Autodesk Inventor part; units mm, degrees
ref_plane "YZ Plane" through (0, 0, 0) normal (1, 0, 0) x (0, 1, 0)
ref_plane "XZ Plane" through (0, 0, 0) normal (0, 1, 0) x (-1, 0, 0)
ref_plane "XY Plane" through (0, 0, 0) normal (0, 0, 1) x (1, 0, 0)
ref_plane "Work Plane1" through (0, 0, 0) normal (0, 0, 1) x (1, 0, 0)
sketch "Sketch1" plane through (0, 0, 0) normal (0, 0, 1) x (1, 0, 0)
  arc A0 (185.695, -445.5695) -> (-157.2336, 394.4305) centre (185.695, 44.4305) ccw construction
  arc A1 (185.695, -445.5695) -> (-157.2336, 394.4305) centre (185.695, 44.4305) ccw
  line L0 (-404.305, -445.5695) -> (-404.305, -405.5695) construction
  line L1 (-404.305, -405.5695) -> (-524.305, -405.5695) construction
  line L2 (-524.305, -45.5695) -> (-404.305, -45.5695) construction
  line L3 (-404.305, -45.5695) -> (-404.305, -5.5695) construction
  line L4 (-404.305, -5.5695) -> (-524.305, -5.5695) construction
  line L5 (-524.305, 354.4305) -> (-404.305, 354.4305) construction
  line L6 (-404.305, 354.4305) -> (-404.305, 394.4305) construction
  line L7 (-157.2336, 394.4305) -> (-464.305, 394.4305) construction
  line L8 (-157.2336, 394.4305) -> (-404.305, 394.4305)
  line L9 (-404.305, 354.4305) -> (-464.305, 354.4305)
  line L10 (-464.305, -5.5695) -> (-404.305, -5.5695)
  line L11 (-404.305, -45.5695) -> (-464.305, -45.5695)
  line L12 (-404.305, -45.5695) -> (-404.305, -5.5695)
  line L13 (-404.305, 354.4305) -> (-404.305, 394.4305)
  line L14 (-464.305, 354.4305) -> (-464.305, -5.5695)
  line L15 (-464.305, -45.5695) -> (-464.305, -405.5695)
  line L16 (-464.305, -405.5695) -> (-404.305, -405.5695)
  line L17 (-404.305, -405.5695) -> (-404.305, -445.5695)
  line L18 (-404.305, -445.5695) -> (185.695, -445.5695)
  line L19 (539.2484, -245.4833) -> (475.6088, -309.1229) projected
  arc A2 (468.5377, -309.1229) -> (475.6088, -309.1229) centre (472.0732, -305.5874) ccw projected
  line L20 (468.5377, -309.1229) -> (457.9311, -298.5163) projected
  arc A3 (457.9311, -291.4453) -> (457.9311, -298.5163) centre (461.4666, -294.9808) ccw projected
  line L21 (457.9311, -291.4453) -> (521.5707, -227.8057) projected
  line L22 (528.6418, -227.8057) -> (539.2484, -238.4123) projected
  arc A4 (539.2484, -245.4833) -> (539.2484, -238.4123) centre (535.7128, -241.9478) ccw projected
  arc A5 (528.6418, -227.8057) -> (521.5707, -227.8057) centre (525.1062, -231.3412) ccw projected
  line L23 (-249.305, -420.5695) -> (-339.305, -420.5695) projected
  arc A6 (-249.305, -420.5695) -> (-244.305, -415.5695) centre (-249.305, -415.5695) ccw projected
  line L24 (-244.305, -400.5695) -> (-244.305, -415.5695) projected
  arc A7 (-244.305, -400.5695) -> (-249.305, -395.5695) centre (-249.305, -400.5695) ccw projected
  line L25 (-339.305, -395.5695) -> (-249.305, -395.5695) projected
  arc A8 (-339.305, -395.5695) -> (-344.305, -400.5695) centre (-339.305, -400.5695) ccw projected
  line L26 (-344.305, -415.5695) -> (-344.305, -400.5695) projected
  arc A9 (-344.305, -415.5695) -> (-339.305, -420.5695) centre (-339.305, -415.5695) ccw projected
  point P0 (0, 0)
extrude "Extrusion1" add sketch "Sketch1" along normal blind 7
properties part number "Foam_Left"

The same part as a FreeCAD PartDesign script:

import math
import FreeCAD as App
import Part
import Sketcher
from FreeCAD import Vector

doc = App.newDocument("Part")
body = doc.addObject("PartDesign::Body", "Body")

# Sketch on XY plane
sketch1 = body.newObject("Sketcher::SketchObject", "Sketch")
sketch1.AttachmentSupport = (doc.getObject("XY_Plane"), [""])
sketch1.MapMode = "FlatFace"
sketch1.addGeometry(Part.LineSegment(Vector(-404.3, -445.6, 0), Vector(185.7, -445.6, 0)), False)
sketch1.addGeometry(Part.ArcOfCircle(Part.Circle(Vector(185.7, 44.4, 0), Vector(0, 0, 1), 490), math.radians(-90), math.radians(134)), False)
sketch1.addGeometry(Part.LineSegment(Vector(-157.2, 394.4, 0), Vector(-404.3, 394.4, 0)), False)
sketch1.addGeometry(Part.LineSegment(Vector(-404.3, 394.4, 0), Vector(-404.3, 354.4, 0)), False)
sketch1.addGeometry(Part.LineSegment(Vector(-404.3, 354.4, 0), Vector(-464.3, 354.4, 0)), False)
sketch1.addGeometry(Part.LineSegment(Vector(-464.3, 354.4, 0), Vector(-464.3, -5.6, 0)), False)
sketch1.addGeometry(Part.LineSegment(Vector(-464.3, -5.6, 0), Vector(-404.3, -5.6, 0)), False)
sketch1.addGeometry(Part.LineSegment(Vector(-404.3, -5.6, 0), Vector(-404.3, -45.6, 0)), False)
sketch1.addGeometry(Part.LineSegment(Vector(-404.3, -45.6, 0), Vector(-464.3, -45.6, 0)), False)
sketch1.addGeometry(Part.LineSegment(Vector(-464.3, -45.6, 0), Vector(-464.3, -405.6, 0)), False)
sketch1.addGeometry(Part.LineSegment(Vector(-464.3, -405.6, 0), Vector(-404.3, -405.6, 0)), False)
sketch1.addGeometry(Part.LineSegment(Vector(-404.3, -405.6, 0), Vector(-404.3, -445.6, 0)), False)
sketch1.addGeometry(Part.ArcOfCircle(Part.Circle(Vector(-249.3, -415.6, 0), Vector(0, 0, 1), 5), math.radians(-90), math.radians(0)), False)
sketch1.addGeometry(Part.LineSegment(Vector(-249.3, -420.6, 0), Vector(-339.3, -420.6, 0)), False)
sketch1.addGeometry(Part.ArcOfCircle(Part.Circle(Vector(-339.3, -415.6, 0), Vector(0, 0, 1), 5), math.radians(180), math.radians(270)), False)
sketch1.addGeometry(Part.LineSegment(Vector(-344.3, -415.6, 0), Vector(-344.3, -400.6, 0)), False)
sketch1.addGeometry(Part.ArcOfCircle(Part.Circle(Vector(-339.3, -400.6, 0), Vector(0, 0, 1), 5), math.radians(90), math.radians(180)), False)
sketch1.addGeometry(Part.LineSegment(Vector(-339.3, -395.6, 0), Vector(-249.3, -395.6, 0)), False)
sketch1.addGeometry(Part.ArcOfCircle(Part.Circle(Vector(-249.3, -400.6, 0), Vector(0, 0, 1), 5), math.radians(0), math.radians(90)), False)
sketch1.addGeometry(Part.LineSegment(Vector(-244.3, -400.6, 0), Vector(-244.3, -415.6, 0)), False)
sketch1.addGeometry(Part.ArcOfCircle(Part.Circle(Vector(535.7, -241.9, 0), Vector(0, 0, 1), 5), math.radians(-45), math.radians(45)), False)
sketch1.addGeometry(Part.LineSegment(Vector(539.2, -245.5, 0), Vector(475.6, -309.1, 0)), False)
sketch1.addGeometry(Part.ArcOfCircle(Part.Circle(Vector(472.1, -305.6, 0), Vector(0, 0, 1), 5), math.radians(-135), math.radians(-45)), False)
sketch1.addGeometry(Part.LineSegment(Vector(468.5, -309.1, 0), Vector(457.9, -298.5, 0)), False)
sketch1.addGeometry(Part.ArcOfCircle(Part.Circle(Vector(461.5, -295, 0), Vector(0, 0, 1), 5), math.radians(135), math.radians(225)), False)
sketch1.addGeometry(Part.LineSegment(Vector(457.9, -291.4, 0), Vector(521.6, -227.8, 0)), False)
sketch1.addGeometry(Part.ArcOfCircle(Part.Circle(Vector(525.1, -231.3, 0), Vector(0, 0, 1), 5), math.radians(45), math.radians(135)), False)
sketch1.addGeometry(Part.LineSegment(Vector(528.6, -227.8, 0), Vector(539.2, -238.4, 0)), False)
sketch1.addConstraint(Sketcher.Constraint("Tangent", 0, 2, 1, 1))
sketch1.addConstraint(Sketcher.Constraint("Coincident", 1, 2, 2, 1))
sketch1.addConstraint(Sketcher.Constraint("Coincident", 2, 2, 3, 1))
sketch1.addConstraint(Sketcher.Constraint("Coincident", 3, 2, 4, 1))
sketch1.addConstraint(Sketcher.Constraint("Coincident", 4, 2, 5, 1))
sketch1.addConstraint(Sketcher.Constraint("Coincident", 5, 2, 6, 1))
sketch1.addConstraint(Sketcher.Constraint("Coincident", 6, 2, 7, 1))
sketch1.addConstraint(Sketcher.Constraint("Coincident", 7, 2, 8, 1))
sketch1.addConstraint(Sketcher.Constraint("Coincident", 8, 2, 9, 1))
sketch1.addConstraint(Sketcher.Constraint("Coincident", 9, 2, 10, 1))
sketch1.addConstraint(Sketcher.Constraint("Coincident", 10, 2, 11, 1))
sketch1.addConstraint(Sketcher.Constraint("Coincident", 11, 2, 0, 1))
sketch1.addConstraint(Sketcher.Constraint("Tangent", 12, 1, 13, 1))
sketch1.addConstraint(Sketcher.Constraint("Tangent", 13, 2, 14, 2))
sketch1.addConstraint(Sketcher.Constraint("Tangent", 14, 1, 15, 1))
sketch1.addConstraint(Sketcher.Constraint("Tangent", 15, 2, 16, 2))
sketch1.addConstraint(Sketcher.Constraint("Tangent", 16, 1, 17, 1))
sketch1.addConstraint(Sketcher.Constraint("Tangent", 17, 2, 18, 2))
sketch1.addConstraint(Sketcher.Constraint("Tangent", 18, 1, 19, 1))
sketch1.addConstraint(Sketcher.Constraint("Tangent", 19, 2, 12, 2))
sketch1.addConstraint(Sketcher.Constraint("Tangent", 20, 1, 21, 1))
sketch1.addConstraint(Sketcher.Constraint("Tangent", 21, 2, 22, 2))
sketch1.addConstraint(Sketcher.Constraint("Tangent", 22, 1, 23, 1))
sketch1.addConstraint(Sketcher.Constraint("Tangent", 23, 2, 24, 2))
sketch1.addConstraint(Sketcher.Constraint("Tangent", 24, 1, 25, 1))
sketch1.addConstraint(Sketcher.Constraint("Tangent", 25, 2, 26, 2))
sketch1.addConstraint(Sketcher.Constraint("Tangent", 26, 1, 27, 1))
sketch1.addConstraint(Sketcher.Constraint("Tangent", 27, 2, 20, 2))
sketch1.addConstraint(Sketcher.Constraint("Horizontal", 0))
sketch1.addConstraint(Sketcher.Constraint("Horizontal", 2))
sketch1.addConstraint(Sketcher.Constraint("Vertical", 3))
sketch1.addConstraint(Sketcher.Constraint("Horizontal", 4))
sketch1.addConstraint(Sketcher.Constraint("Vertical", 5))
sketch1.addConstraint(Sketcher.Constraint("Horizontal", 6))
sketch1.addConstraint(Sketcher.Constraint("Vertical", 7))
sketch1.addConstraint(Sketcher.Constraint("Horizontal", 8))
sketch1.addConstraint(Sketcher.Constraint("Vertical", 9))
sketch1.addConstraint(Sketcher.Constraint("Horizontal", 10))
sketch1.addConstraint(Sketcher.Constraint("Vertical", 11))
sketch1.addConstraint(Sketcher.Constraint("Horizontal", 13))
sketch1.addConstraint(Sketcher.Constraint("Vertical", 15))
sketch1.addConstraint(Sketcher.Constraint("Horizontal", 17))
sketch1.addConstraint(Sketcher.Constraint("Vertical", 19))
sketch1.addConstraint(Sketcher.Constraint("Equal", 12, 14))
sketch1.addConstraint(Sketcher.Constraint("Equal", 14, 16))
sketch1.addConstraint(Sketcher.Constraint("Equal", 16, 18))
sketch1.addConstraint(Sketcher.Constraint("Equal", 18, 20))
sketch1.addConstraint(Sketcher.Constraint("Equal", 20, 22))
sketch1.addConstraint(Sketcher.Constraint("Equal", 22, 24))
sketch1.addConstraint(Sketcher.Constraint("Equal", 24, 26))
sketch1.addConstraint(Sketcher.Constraint("Perpendicular", 21, 23))
sketch1.addConstraint(Sketcher.Constraint("Perpendicular", 23, 25))
sketch1.addConstraint(Sketcher.Constraint("Perpendicular", 25, 27))
sketch1.addConstraint(Sketcher.Constraint("Horizontal", 21, 2, 22, 1))
sketch1.addConstraint(Sketcher.Constraint("Vertical", 3, 2, 6, 2))
sketch1.addConstraint(Sketcher.Constraint("Vertical", 5, 2, 8, 2))
sketch1.addConstraint(Sketcher.Constraint("Vertical", 7, 2, 10, 2))
sketch1.addConstraint(Sketcher.Constraint("Equal", 3, 7))
sketch1.addConstraint(Sketcher.Constraint("Equal", 5, 9))
sketch1.addConstraint(Sketcher.Constraint("Equal", 7, 11))
sketch1.addConstraint(Sketcher.Constraint("Radius", 1, 490.0))
sketch1.addConstraint(Sketcher.Constraint("Radius", 12, 5.0))
sketch1.addConstraint(Sketcher.Constraint("DistanceX", 0, 1, 0, 2, 590.0))
sketch1.addConstraint(Sketcher.Constraint("DistanceX", 4, 2, 4, 1, 60.0))
sketch1.addConstraint(Sketcher.Constraint("DistanceX", 13, 2, 13, 1, 90.0))
sketch1.addConstraint(Sketcher.Constraint("DistanceY", 3, 2, 3, 1, 40.0))
sketch1.addConstraint(Sketcher.Constraint("DistanceY", 5, 2, 5, 1, 360.0))
sketch1.addConstraint(Sketcher.Constraint("DistanceY", 15, 1, 15, 2, 15.0))
sketch1.addConstraint(Sketcher.Constraint("Distance", 21, 90.0))
sketch1.addConstraint(Sketcher.Constraint("Distance", 23, 15.0))
sketch1.addConstraint(Sketcher.Constraint("DistanceX", 12, 3, 1, 3, 435.0))
sketch1.addConstraint(Sketcher.Constraint("DistanceY", 12, 3, 1, 3, 460.0))
sketch1.addConstraint(Sketcher.Constraint("DistanceX", -1, 1, 1, 3, 185.695))
sketch1.addConstraint(Sketcher.Constraint("DistanceY", 21, 2, -1, 1, 309.123))
sketch1.addConstraint(Sketcher.Constraint("DistanceX", -1, 1, 23, 2, 457.931))
sketch1.addConstraint(Sketcher.Constraint("DistanceY", 22, 3, 1, 3, 350.018))
pad1 = body.newObject("PartDesign::Pad", "Pad")
pad1.Profile = sketch1
pad1.Length = 7

doc.recompute()
